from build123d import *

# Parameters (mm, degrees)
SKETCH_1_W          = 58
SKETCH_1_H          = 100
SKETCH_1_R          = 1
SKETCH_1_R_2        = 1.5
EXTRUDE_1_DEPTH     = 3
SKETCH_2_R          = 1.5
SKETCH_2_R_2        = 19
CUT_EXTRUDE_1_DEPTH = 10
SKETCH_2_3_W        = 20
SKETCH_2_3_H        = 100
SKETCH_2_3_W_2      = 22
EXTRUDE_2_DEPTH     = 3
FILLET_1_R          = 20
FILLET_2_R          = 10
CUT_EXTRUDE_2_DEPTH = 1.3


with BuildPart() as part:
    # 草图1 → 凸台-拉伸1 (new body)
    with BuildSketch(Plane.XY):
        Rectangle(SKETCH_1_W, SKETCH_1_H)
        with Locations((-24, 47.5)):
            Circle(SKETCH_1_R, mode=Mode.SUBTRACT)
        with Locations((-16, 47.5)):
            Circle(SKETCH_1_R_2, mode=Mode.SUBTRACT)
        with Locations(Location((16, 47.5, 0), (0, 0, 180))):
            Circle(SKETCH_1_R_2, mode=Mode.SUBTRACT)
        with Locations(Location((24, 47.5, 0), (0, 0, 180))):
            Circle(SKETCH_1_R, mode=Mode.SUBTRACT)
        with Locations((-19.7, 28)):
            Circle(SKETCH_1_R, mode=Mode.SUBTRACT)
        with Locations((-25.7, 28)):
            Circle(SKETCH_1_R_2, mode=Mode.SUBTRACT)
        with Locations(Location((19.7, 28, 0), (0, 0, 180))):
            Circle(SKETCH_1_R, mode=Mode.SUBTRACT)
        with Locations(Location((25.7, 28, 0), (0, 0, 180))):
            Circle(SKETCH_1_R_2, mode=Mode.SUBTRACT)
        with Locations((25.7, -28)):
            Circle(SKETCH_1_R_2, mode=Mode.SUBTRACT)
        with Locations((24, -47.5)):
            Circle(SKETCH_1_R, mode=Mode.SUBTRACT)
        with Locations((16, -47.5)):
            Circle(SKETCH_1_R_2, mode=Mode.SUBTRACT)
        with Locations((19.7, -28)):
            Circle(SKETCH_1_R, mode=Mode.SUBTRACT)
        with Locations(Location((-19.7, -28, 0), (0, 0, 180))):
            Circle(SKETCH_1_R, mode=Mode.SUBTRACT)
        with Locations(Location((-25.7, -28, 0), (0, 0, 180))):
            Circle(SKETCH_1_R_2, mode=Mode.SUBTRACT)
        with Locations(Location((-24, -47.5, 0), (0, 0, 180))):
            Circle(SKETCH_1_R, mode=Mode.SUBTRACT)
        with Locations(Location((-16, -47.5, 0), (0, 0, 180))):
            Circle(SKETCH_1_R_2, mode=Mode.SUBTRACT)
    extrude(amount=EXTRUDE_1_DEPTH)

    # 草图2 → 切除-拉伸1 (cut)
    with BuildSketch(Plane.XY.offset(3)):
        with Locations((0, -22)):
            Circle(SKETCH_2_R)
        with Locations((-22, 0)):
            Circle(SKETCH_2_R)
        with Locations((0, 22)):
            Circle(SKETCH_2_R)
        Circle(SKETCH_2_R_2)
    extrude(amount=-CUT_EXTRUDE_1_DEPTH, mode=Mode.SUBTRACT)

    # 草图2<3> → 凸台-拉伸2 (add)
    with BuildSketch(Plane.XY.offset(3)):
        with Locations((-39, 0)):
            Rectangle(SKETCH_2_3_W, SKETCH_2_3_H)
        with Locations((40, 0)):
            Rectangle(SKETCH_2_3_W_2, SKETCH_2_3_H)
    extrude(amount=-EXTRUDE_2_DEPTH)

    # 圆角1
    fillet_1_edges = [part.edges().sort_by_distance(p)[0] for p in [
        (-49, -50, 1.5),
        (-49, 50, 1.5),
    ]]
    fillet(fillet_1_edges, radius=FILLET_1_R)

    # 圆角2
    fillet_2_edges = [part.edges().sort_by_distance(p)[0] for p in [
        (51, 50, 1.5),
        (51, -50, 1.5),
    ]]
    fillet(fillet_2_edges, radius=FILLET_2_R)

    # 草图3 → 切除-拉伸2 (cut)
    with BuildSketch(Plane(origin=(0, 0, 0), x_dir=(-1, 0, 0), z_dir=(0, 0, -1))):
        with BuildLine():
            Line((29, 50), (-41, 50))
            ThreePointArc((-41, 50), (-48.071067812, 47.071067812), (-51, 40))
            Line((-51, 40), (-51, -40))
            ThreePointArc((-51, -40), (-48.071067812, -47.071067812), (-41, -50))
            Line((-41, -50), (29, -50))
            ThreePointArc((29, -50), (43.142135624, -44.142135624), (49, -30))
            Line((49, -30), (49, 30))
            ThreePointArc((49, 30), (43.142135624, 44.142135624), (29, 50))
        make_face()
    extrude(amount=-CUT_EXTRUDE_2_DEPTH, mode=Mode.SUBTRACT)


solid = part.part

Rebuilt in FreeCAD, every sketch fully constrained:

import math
import FreeCAD as App
import Part
import Sketcher
from FreeCAD import Vector


def edges_at(feature, points):
    """Names of the edges that pass closest to the given points."""
    edges = feature.Shape.Edges
    near = lambda p: min(range(len(edges)), key=lambda i: edges[i].distToShape(Part.Vertex(*p))[0])
    return sorted({f"Edge{near(p) + 1}" for p in points})

doc = App.newDocument("Part")
params = doc.addObject("Spreadsheet::Sheet", "Params")
for row, (alias, value) in enumerate([
    ("sketch1_diameter", "2 mm"),
    ("sketch1_diameter2", "3 mm"),
    ("sketch1_width", "58 mm"),
    ("sketch1_height", "100 mm"),
    ("pad1_length", "3 mm"),
    ("sketch2_diameter", "3 mm"),
    ("sketch2_diameter2", "38 mm"),
    ("pocket1_length", "10 mm"),
    ("sketch3_width", "20 mm"),
    ("sketch3_width2", "22 mm"),
    ("sketch3_height", "100 mm"),
    ("pad2_length", "3 mm"),
    ("fillet_radius", "20 mm"),
    ("fillet2_radius", "10 mm"),
    ("sketch4_radius", "10 mm"),
    ("sketch4_radius2", "20 mm"),
    ("sketch4_width", "70 mm"),
    ("sketch4_height", "80 mm"),
    ("pocket2_length", "1.3 mm"),
], start=1):
    params.set(f"A{row}", alias)
    params.set(f"B{row}", "=" + value)
    params.setAlias(f"B{row}", alias)

body = doc.addObject("PartDesign::Body", "Body")

sketch1 = body.newObject("Sketcher::SketchObject", "Sketch")
sketch1.AttachmentSupport = (doc.getObject("XY_Plane"), [""])
sketch1.MapMode = "FlatFace"
sketch1.addGeometry(Part.LineSegment(Vector(-29, 50, 0), Vector(-29, -50, 0)), False)
sketch1.addGeometry(Part.LineSegment(Vector(-29, -50, 0), Vector(29, -50, 0)), False)
sketch1.addGeometry(Part.LineSegment(Vector(29, -50, 0), Vector(29, 50, 0)), False)
sketch1.addGeometry(Part.LineSegment(Vector(29, 50, 0), Vector(-29, 50, 0)), False)
sketch1.addGeometry(Part.Circle(Vector(-24, -47.5, 0), Vector(0, 0, 1), 1), False)
sketch1.addGeometry(Part.Circle(Vector(-16, -47.5, 0), Vector(0, 0, 1), 1.5), False)
sketch1.addGeometry(Part.Circle(Vector(-25.7, -28, 0), Vector(0, 0, 1), 1.5), False)
sketch1.addGeometry(Part.Circle(Vector(-19.7, -28, 0), Vector(0, 0, 1), 1), False)
sketch1.addGeometry(Part.Circle(Vector(16, -47.5, 0), Vector(0, 0, 1), 1.5), False)
sketch1.addGeometry(Part.Circle(Vector(24, -47.5, 0), Vector(0, 0, 1), 1), False)
sketch1.addGeometry(Part.Circle(Vector(19.7, -28, 0), Vector(0, 0, 1), 1), False)
sketch1.addGeometry(Part.Circle(Vector(25.7, -28, 0), Vector(0, 0, 1), 1.5), False)
sketch1.addGeometry(Part.Circle(Vector(-25.7, 28, 0), Vector(0, 0, 1), 1.5), False)
sketch1.addGeometry(Part.Circle(Vector(-19.7, 28, 0), Vector(0, 0, 1), 1), False)
sketch1.addGeometry(Part.Circle(Vector(-24, 47.5, 0), Vector(0, 0, 1), 1), False)
sketch1.addGeometry(Part.Circle(Vector(-16, 47.5, 0), Vector(0, 0, 1), 1.5), False)
sketch1.addGeometry(Part.Circle(Vector(19.7, 28, 0), Vector(0, 0, 1), 1), False)
sketch1.addGeometry(Part.Circle(Vector(25.7, 28, 0), Vector(0, 0, 1), 1.5), False)
sketch1.addGeometry(Part.Circle(Vector(16, 47.5, 0), Vector(0, 0, 1), 1.5), False)
sketch1.addGeometry(Part.Circle(Vector(24, 47.5, 0), Vector(0, 0, 1), 1), False)
sketch1.addConstraint(Sketcher.Constraint("Coincident", 0, 2, 1, 1))
sketch1.addConstraint(Sketcher.Constraint("Coincident", 1, 2, 2, 1))
sketch1.addConstraint(Sketcher.Constraint("Coincident", 2, 2, 3, 1))
sketch1.addConstraint(Sketcher.Constraint("Coincident", 3, 2, 0, 1))
sketch1.addConstraint(Sketcher.Constraint("Vertical", 0))
sketch1.addConstraint(Sketcher.Constraint("Horizontal", 1))
sketch1.addConstraint(Sketcher.Constraint("Vertical", 2))
sketch1.addConstraint(Sketcher.Constraint("Horizontal", 3))
sketch1.addConstraint(Sketcher.Constraint("Equal", 5, 6))
sketch1.addConstraint(Sketcher.Constraint("Equal", 4, 7))
sketch1.addConstraint(Sketcher.Constraint("Equal", 6, 8))
sketch1.addConstraint(Sketcher.Constraint("Equal", 7, 9))
sketch1.addConstraint(Sketcher.Constraint("Equal", 9, 10))
sketch1.addConstraint(Sketcher.Constraint("Equal", 8, 11))
sketch1.addConstraint(Sketcher.Constraint("Equal", 11, 12))
sketch1.addConstraint(Sketcher.Constraint("Equal", 10, 13))
sketch1.addConstraint(Sketcher.Constraint("Equal", 13, 14))
sketch1.addConstraint(Sketcher.Constraint("Equal", 12, 15))
sketch1.addConstraint(Sketcher.Constraint("Equal", 14, 16))
sketch1.addConstraint(Sketcher.Constraint("Equal", 15, 17))
sketch1.addConstraint(Sketcher.Constraint("Equal", 17, 18))
sketch1.addConstraint(Sketcher.Constraint("Equal", 16, 19))
sketch1.addConstraint(Sketcher.Constraint("Symmetric", 11, 3, 12, 3, -1, 1))
sketch1.addConstraint(Sketcher.Constraint("Symmetric", 10, 3, 13, 3, -1, 1))
sketch1.addConstraint(Sketcher.Constraint("Symmetric", 9, 3, 14, 3, -1, 1))
sketch1.addConstraint(Sketcher.Constraint("Symmetric", 8, 3, 15, 3, -1, 1))
sketch1.addConstraint(Sketcher.Constraint("Symmetric", 7, 3, 16, 3, -1, 1))
sketch1.addConstraint(Sketcher.Constraint("Symmetric", 6, 3, 17, 3, -1, 1))
sketch1.addConstraint(Sketcher.Constraint("Symmetric", 5, 3, 18, 3, -1, 1))
sketch1.addConstraint(Sketcher.Constraint("Symmetric", 4, 3, 19, 3, -1, 1))
sketch1.addConstraint(Sketcher.Constraint("Symmetric", 0, 2, 2, 2, -1, 1))
sketch1.addConstraint(Sketcher.Constraint("Symmetric", 5, 3, 8, 3, -2))
sketch1.addConstraint(Sketcher.Constraint("Symmetric", 4, 3, 9, 3, -2))
sketch1.addConstraint(Sketcher.Constraint("Symmetric", 7, 3, 10, 3, -2))
sketch1.addConstraint(Sketcher.Constraint("Symmetric", 6, 3, 11, 3, -2))
sketch1.addConstraint(Sketcher.Constraint("Horizontal", 4, 3, 5, 3))
sketch1.addConstraint(Sketcher.Constraint("Horizontal", 6, 3, 7, 3))
sketch1.addConstraint(Sketcher.Constraint("Diameter", 4, 2.0))
sketch1.addConstraint(Sketcher.Constraint("Diameter", 5, 3.0))
sketch1.addConstraint(Sketcher.Constraint("DistanceX", 1, 1, 1, 2, 58.0))
sketch1.addConstraint(Sketcher.Constraint("DistanceY", 0, 2, 0, 1, 100.0))
sketch1.addConstraint(Sketcher.Constraint("DistanceX", 4, 3, -1, 1, 24.0))
sketch1.addConstraint(Sketcher.Constraint("DistanceX", 5, 3, -1, 1, 16.0))
sketch1.addConstraint(Sketcher.Constraint("DistanceY", 6, 3, -1, 1, 28.0))
sketch1.addConstraint(Sketcher.Constraint("DistanceX", 6, 3, 7, 3, 6.0))
sketch1.addConstraint(Sketcher.Constraint("DistanceY", 4, 3, -1, 1, 47.5))
sketch1.addConstraint(Sketcher.Constraint("DistanceX", 6, 3, -1, 1, 25.7))
sketch1.setExpression("Constraints[37]", "Params.sketch1_diameter")
sketch1.setExpression("Constraints[38]", "Params.sketch1_diameter2")
sketch1.setExpression("Constraints[39]", "Params.sketch1_width")
sketch1.setExpression("Constraints[40]", "Params.sketch1_height")
pad1 = body.newObject("PartDesign::Pad", "Pad")
pad1.Profile = sketch1
pad1.setExpression("Length", "Params.pad1_length")

sketch2 = body.newObject("Sketcher::SketchObject", "Sketch001")
sketch2.AttachmentSupport = (doc.getObject("XY_Plane"), [""])
sketch2.MapMode = "FlatFace"
sketch2.AttachmentOffset = App.Placement(Vector(0, 0, 3), App.Rotation())
sketch2.addGeometry(Part.Circle(Vector(0, -22, 0), Vector(0, 0, 1), 1.5), False)
sketch2.addGeometry(Part.Circle(Vector(-22, 0, 0), Vector(0, 0, 1), 1.5), False)
sketch2.addGeometry(Part.Circle(Vector(0, 22, 0), Vector(0, 0, 1), 1.5), False)
sketch2.addGeometry(Part.Circle(Vector(0, 0, 0), Vector(0, 0, 1), 19), False)
sketch2.addConstraint(Sketcher.Constraint("Coincident", 3, 3, -1, 1))
sketch2.addConstraint(Sketcher.Constraint("Equal", 0, 1))
sketch2.addConstraint(Sketcher.Constraint("Equal", 1, 2))
sketch2.addConstraint(Sketcher.Constraint("Symmetric", 0, 3, 2, 3, -1, 1))
sketch2.addConstraint(Sketcher.Constraint("PointOnObject", 0, 3, -2))
sketch2.addConstraint(Sketcher.Constraint("PointOnObject", 1, 3, -1))
sketch2.addConstraint(Sketcher.Constraint("Diameter", 0, 3.0))
sketch2.addConstraint(Sketcher.Constraint("Diameter", 3, 38.0))
sketch2.addConstraint(Sketcher.Constraint("DistanceY", 0, 3, -1, 1, 22.0))
sketch2.addConstraint(Sketcher.Constraint("DistanceX", 1, 3, -1, 1, 22.0))
sketch2.setExpression("Constraints[6]", "Params.sketch2_diameter")
sketch2.setExpression("Constraints[7]", "Params.sketch2_diameter2")
pocket1 = body.newObject("PartDesign::Pocket", "Pocket")
pocket1.Profile = sketch2
pocket1.setExpression("Length", "Params.pocket1_length")

sketch3 = body.newObject("Sketcher::SketchObject", "Sketch002")
sketch3.AttachmentSupport = (doc.getObject("XY_Plane"), [""])
sketch3.MapMode = "FlatFace"
sketch3.AttachmentOffset = App.Placement(Vector(0, 0, 3), App.Rotation())
sketch3.addGeometry(Part.LineSegment(Vector(-49, 50, 0), Vector(-49, -50, 0)), False)
sketch3.addGeometry(Part.LineSegment(Vector(-49, -50, 0), Vector(-29, -50, 0)), False)
sketch3.addGeometry(Part.LineSegment(Vector(-29, -50, 0), Vector(-29, 50, 0)), False)
sketch3.addGeometry(Part.LineSegment(Vector(-29, 50, 0), Vector(-49, 50, 0)), False)
sketch3.addGeometry(Part.LineSegment(Vector(29, 50, 0), Vector(29, -50, 0)), False)
sketch3.addGeometry(Part.LineSegment(Vector(29, -50, 0), Vector(51, -50, 0)), False)
sketch3.addGeometry(Part.LineSegment(Vector(51, -50, 0), Vector(51, 50, 0)), False)
sketch3.addGeometry(Part.LineSegment(Vector(51, 50, 0), Vector(29, 50, 0)), False)
sketch3.addConstraint(Sketcher.Constraint("Coincident", 0, 2, 1, 1))
sketch3.addConstraint(Sketcher.Constraint("Coincident", 1, 2, 2, 1))
sketch3.addConstraint(Sketcher.Constraint("Coincident", 2, 2, 3, 1))
sketch3.addConstraint(Sketcher.Constraint("Coincident", 3, 2, 0, 1))
sketch3.addConstraint(Sketcher.Constraint("Coincident", 4, 2, 5, 1))
sketch3.addConstraint(Sketcher.Constraint("Coincident", 5, 2, 6, 1))
sketch3.addConstraint(Sketcher.Constraint("Coincident", 6, 2, 7, 1))
sketch3.addConstraint(Sketcher.Constraint("Coincident", 7, 2, 4, 1))
sketch3.addConstraint(Sketcher.Constraint("Vertical", 0))
sketch3.addConstraint(Sketcher.Constraint("Horizontal", 1))
sketch3.addConstraint(Sketcher.Constraint("Vertical", 2))
sketch3.addConstraint(Sketcher.Constraint("Horizontal", 3))
sketch3.addConstraint(Sketcher.Constraint("Vertical", 4))
sketch3.addConstraint(Sketcher.Constraint("Horizontal", 5))
sketch3.addConstraint(Sketcher.Constraint("Vertical", 6))
sketch3.addConstraint(Sketcher.Constraint("Horizontal", 7))
sketch3.addConstraint(Sketcher.Constraint("Symmetric", 2, 2, 4, 2, -1, 1))
sketch3.addConstraint(Sketcher.Constraint("Horizontal", 1, 2, 4, 2))
sketch3.addConstraint(Sketcher.Constraint("Horizontal", 3, 2, 6, 2))
sketch3.addConstraint(Sketcher.Constraint("DistanceX", 1, 1, 1, 2, 20.0))
sketch3.addConstraint(Sketcher.Constraint("DistanceX", 5, 1, 5, 2, 22.0))
sketch3.addConstraint(Sketcher.Constraint("DistanceY", 0, 2, 0, 1, 100.0))
sketch3.addConstraint(Sketcher.Constraint("DistanceX", 0, 2, -1, 1, 49.0))
sketch3.setExpression("Constraints[19]", "Params.sketch3_width")
sketch3.setExpression("Constraints[20]", "Params.sketch3_width2")
sketch3.setExpression("Constraints[21]", "Params.sketch3_height")
pad2 = body.newObject("PartDesign::Pad", "Pad001")
pad2.Profile = sketch3
pad2.setExpression("Length", "Params.pad2_length")
pad2.Reversed = True
doc.recompute()

fillet = body.newObject("PartDesign::Fillet", "Fillet")
fillet.Base = (pad2, edges_at(pad2, [(-49, -50, 1.5), (-49, 50, 1.5)]))
fillet.setExpression("Radius", "Params.fillet_radius")
doc.recompute()

fillet2 = body.newObject("PartDesign::Fillet", "Fillet001")
fillet2.Base = (fillet, edges_at(fillet, [(51, 50, 1.5), (51, -50, 1.5)]))
fillet2.setExpression("Radius", "Params.fillet2_radius")

sketch4 = body.newObject("Sketcher::SketchObject", "Sketch003")
sketch4.AttachmentSupport = (doc.getObject("XY_Plane"), [""])
sketch4.MapMode = "FlatFace"
sketch4.addGeometry(Part.LineSegment(Vector(-29, 50, 0), Vector(41, 50, 0)), False)
sketch4.addGeometry(Part.ArcOfCircle(Part.Circle(Vector(41, 40, 0), Vector(0, 0, 1), 10), math.radians(0), math.radians(90)), False)
sketch4.addGeometry(Part.LineSegment(Vector(51, 40, 0), Vector(51, -40, 0)), False)
sketch4.addGeometry(Part.ArcOfCircle(Part.Circle(Vector(41, -40, 0), Vector(0, 0, 1), 10), math.radians(-90), math.radians(0)), False)
sketch4.addGeometry(Part.LineSegment(Vector(41, -50, 0), Vector(-29, -50, 0)), False)
sketch4.addGeometry(Part.ArcOfCircle(Part.Circle(Vector(-29, -30, 0), Vector(0, 0, 1), 20), math.radians(180), math.radians(270)), False)
sketch4.addGeometry(Part.LineSegment(Vector(-49, -30, 0), Vector(-49, 30, 0)), False)
sketch4.addGeometry(Part.ArcOfCircle(Part.Circle(Vector(-29, 30, 0), Vector(0, 0, 1), 20), math.radians(90), math.radians(180)), False)
sketch4.addConstraint(Sketcher.Constraint("Tangent", 0, 2, 1, 2))
sketch4.addConstraint(Sketcher.Constraint("Tangent", 1, 1, 2, 1))
sketch4.addConstraint(Sketcher.Constraint("Tangent", 2, 2, 3, 2))
sketch4.addConstraint(Sketcher.Constraint("Tangent", 3, 1, 4, 1))
sketch4.addConstraint(Sketcher.Constraint("Tangent", 4, 2, 5, 2))
sketch4.addConstraint(Sketcher.Constraint("Tangent", 5, 1, 6, 1))
sketch4.addConstraint(Sketcher.Constraint("Tangent", 6, 2, 7, 2))
sketch4.addConstraint(Sketcher.Constraint("Tangent", 7, 1, 0, 1))
sketch4.addConstraint(Sketcher.Constraint("Horizontal", 0))
sketch4.addConstraint(Sketcher.Constraint("Vertical", 2))
sketch4.addConstraint(Sketcher.Constraint("Horizontal", 4))
sketch4.addConstraint(Sketcher.Constraint("Vertical", 6))
sketch4.addConstraint(Sketcher.Constraint("Equal", 1, 3))
sketch4.addConstraint(Sketcher.Constraint("Equal", 5, 7))
sketch4.addConstraint(Sketcher.Constraint("Radius", 1, 10.0))
sketch4.addConstraint(Sketcher.Constraint("Radius", 5, 20.0))
sketch4.addConstraint(Sketcher.Constraint("DistanceX", 0, 1, 0, 2, 70.0))
sketch4.addConstraint(Sketcher.Constraint("DistanceY", 2, 2, 2, 1, 80.0))
sketch4.addConstraint(Sketcher.Constraint("DistanceX", -1, 1, 1, 3, 41.0))
sketch4.addConstraint(Sketcher.Constraint("DistanceY", -1, 1, 1, 3, 40.0))
sketch4.setExpression("Constraints[14]", "Params.sketch4_radius")
sketch4.setExpression("Constraints[15]", "Params.sketch4_radius2")
sketch4.setExpression("Constraints[16]", "Params.sketch4_width")
sketch4.setExpression("Constraints[17]", "Params.sketch4_height")
pocket2 = body.newObject("PartDesign::Pocket", "Pocket001")
pocket2.Profile = sketch4
pocket2.setExpression("Length", "Params.pocket2_length")
pocket2.Reversed = True

doc.recompute()
